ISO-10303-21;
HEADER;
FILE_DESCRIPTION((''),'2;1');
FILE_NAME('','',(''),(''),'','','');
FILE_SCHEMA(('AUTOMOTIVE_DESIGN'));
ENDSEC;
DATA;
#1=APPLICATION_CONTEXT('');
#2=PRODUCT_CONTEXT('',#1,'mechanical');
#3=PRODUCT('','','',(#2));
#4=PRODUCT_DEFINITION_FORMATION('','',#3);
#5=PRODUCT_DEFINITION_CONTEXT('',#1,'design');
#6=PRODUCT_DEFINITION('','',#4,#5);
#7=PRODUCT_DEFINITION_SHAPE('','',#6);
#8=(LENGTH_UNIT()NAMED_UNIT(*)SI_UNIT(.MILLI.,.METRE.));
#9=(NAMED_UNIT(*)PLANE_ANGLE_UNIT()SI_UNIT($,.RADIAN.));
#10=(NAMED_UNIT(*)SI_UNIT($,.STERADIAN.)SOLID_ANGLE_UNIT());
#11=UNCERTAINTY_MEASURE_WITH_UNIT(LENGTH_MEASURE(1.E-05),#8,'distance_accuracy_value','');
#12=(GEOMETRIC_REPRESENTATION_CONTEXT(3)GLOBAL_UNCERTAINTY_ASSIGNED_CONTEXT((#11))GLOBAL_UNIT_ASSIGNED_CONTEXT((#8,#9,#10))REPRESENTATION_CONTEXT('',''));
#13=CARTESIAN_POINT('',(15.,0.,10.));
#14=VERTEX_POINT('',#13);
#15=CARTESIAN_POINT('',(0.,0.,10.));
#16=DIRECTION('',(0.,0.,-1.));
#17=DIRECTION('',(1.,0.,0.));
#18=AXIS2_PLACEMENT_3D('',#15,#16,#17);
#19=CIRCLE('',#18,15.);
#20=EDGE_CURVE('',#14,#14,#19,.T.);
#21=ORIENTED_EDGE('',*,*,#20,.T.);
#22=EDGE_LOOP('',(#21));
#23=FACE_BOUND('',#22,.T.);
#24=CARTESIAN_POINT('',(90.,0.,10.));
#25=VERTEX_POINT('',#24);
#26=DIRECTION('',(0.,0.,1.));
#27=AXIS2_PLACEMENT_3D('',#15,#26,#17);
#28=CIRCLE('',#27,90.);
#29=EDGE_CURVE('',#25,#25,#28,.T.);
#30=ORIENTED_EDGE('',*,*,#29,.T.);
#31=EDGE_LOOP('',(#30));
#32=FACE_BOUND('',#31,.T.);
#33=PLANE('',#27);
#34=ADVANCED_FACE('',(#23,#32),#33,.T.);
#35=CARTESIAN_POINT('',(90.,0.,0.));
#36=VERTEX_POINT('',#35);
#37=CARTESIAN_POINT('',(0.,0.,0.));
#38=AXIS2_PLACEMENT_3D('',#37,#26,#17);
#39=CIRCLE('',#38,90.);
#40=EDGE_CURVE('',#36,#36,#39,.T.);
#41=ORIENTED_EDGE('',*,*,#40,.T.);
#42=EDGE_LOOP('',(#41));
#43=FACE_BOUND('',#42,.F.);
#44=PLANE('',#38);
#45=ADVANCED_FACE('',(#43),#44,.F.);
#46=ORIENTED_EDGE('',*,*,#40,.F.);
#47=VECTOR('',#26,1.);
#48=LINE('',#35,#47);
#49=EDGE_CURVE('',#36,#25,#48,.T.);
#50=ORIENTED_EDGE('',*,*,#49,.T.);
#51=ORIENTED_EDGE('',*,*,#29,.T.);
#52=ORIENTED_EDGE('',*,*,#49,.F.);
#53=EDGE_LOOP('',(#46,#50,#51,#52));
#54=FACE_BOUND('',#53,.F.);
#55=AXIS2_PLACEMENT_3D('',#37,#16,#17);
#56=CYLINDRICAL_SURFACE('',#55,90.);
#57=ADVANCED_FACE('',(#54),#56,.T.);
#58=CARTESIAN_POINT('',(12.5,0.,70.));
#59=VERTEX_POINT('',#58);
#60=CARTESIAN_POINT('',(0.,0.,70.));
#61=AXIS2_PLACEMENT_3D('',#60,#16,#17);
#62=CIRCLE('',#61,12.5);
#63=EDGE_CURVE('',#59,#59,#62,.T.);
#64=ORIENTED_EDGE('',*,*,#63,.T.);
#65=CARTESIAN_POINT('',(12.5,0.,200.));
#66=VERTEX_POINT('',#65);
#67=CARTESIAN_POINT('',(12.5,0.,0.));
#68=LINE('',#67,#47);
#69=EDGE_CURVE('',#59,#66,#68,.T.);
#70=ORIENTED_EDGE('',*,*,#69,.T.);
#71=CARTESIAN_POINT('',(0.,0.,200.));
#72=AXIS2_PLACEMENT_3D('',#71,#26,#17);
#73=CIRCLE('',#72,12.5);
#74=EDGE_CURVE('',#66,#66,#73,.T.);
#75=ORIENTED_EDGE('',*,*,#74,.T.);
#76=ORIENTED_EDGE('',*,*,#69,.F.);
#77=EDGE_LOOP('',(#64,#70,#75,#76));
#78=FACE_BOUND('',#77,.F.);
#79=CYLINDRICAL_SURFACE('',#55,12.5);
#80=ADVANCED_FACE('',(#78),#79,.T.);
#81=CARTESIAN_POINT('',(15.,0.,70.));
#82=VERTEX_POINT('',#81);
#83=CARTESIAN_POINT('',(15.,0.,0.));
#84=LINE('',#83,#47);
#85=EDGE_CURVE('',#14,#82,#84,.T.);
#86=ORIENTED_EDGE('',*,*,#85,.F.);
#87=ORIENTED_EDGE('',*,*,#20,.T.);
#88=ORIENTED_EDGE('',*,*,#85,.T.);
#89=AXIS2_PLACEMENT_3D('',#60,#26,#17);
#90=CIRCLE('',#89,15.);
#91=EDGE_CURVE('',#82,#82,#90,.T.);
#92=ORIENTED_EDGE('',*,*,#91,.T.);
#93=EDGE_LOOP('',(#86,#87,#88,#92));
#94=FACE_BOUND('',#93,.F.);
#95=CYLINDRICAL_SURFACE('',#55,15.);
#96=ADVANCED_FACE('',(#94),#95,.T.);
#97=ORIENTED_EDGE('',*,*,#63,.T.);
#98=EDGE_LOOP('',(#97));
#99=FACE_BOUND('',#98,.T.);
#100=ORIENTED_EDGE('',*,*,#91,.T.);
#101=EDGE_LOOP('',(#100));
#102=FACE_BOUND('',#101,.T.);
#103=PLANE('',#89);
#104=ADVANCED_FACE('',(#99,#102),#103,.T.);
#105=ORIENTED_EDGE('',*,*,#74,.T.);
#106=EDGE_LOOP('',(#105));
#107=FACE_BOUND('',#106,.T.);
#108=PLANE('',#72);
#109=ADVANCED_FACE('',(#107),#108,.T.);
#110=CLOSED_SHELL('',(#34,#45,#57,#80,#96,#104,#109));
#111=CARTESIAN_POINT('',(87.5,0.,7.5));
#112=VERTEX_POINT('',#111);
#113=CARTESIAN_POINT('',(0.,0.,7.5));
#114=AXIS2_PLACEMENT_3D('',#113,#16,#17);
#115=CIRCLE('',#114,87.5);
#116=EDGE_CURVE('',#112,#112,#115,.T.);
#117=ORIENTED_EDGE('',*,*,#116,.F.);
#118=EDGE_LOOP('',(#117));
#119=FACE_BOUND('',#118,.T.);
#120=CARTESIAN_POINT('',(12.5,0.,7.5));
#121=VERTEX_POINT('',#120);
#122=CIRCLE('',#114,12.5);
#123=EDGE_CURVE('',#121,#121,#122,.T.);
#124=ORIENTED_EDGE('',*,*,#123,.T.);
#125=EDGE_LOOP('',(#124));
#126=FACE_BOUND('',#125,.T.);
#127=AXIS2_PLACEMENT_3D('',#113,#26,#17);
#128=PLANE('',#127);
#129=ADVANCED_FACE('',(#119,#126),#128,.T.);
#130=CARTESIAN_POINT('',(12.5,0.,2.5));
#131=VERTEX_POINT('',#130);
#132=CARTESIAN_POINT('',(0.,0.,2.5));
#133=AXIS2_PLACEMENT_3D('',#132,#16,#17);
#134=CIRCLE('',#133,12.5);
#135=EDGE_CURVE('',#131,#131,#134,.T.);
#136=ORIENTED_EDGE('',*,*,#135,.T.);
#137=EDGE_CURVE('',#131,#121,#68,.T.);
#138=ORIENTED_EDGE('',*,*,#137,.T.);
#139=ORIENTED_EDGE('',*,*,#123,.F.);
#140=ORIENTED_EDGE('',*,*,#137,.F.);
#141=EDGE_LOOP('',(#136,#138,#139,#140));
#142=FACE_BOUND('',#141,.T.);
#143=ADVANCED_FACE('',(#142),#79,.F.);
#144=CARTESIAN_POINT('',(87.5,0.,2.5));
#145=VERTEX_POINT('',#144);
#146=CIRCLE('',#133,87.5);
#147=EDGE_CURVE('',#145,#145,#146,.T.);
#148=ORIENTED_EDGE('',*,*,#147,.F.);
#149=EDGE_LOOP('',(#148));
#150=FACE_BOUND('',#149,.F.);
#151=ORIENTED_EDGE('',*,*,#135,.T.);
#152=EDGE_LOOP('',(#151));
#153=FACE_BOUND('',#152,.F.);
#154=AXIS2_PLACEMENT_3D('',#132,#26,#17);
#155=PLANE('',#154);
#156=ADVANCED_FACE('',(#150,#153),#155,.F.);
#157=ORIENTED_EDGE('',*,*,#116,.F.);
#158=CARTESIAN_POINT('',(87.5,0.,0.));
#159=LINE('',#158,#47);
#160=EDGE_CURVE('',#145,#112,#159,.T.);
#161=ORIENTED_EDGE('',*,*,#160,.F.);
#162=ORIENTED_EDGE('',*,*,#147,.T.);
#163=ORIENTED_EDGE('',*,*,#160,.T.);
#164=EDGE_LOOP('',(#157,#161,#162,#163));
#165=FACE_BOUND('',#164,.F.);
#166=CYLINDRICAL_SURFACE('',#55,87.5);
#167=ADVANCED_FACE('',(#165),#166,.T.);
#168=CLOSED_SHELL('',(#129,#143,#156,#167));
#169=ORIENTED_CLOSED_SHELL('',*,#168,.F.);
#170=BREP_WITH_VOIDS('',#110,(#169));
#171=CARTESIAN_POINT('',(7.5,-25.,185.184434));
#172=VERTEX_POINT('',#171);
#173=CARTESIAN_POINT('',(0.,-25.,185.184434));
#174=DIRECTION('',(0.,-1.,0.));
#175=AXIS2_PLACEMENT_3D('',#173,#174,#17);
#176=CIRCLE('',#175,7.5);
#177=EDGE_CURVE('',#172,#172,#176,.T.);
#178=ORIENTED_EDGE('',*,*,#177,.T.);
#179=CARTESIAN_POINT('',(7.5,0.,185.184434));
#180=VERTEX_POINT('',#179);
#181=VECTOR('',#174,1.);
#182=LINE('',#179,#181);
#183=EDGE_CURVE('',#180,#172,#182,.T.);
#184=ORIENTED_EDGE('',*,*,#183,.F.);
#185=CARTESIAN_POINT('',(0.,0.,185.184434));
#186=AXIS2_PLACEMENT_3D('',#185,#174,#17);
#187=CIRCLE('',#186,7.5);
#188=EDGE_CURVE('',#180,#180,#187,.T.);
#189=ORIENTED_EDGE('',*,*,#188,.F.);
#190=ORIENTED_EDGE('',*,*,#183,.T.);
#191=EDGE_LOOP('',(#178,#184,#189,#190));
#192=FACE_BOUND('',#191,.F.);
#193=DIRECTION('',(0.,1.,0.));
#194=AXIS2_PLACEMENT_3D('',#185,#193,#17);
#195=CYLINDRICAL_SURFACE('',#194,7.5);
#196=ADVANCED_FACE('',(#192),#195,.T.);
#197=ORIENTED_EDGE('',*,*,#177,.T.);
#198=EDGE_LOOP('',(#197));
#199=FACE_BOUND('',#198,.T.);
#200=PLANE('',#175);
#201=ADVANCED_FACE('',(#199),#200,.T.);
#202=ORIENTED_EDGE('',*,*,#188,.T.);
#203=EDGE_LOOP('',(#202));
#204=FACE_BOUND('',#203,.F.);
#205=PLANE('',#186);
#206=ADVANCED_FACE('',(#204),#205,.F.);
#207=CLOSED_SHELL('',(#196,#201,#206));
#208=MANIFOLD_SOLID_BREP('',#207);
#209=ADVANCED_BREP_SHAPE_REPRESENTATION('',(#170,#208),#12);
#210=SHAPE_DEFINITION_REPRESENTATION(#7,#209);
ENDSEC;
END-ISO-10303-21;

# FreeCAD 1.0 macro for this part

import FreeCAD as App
import Part
import Sketcher
from FreeCAD import Vector


def faces_at(feature, points):
    """Names of the faces that lie closest to the given points."""
    faces = feature.Shape.Faces
    near = lambda p: min(range(len(faces)), key=lambda i: faces[i].distToShape(Part.Vertex(*p))[0])
    return sorted({f"Face{near(p) + 1}" for p in points})

doc = App.newDocument("Part")
body = doc.addObject("PartDesign::Body", "Body")

sketch1 = body.newObject("Sketcher::SketchObject", "Sketch")
sketch1.AttachmentSupport = (doc.getObject("XY_Plane"), [""])
sketch1.MapMode = "FlatFace"
sketch1.addGeometry(Part.Circle(Vector(0, 0, 0), Vector(0, 0, 1), 90), False)
sketch1.addConstraint(Sketcher.Constraint("Coincident", 0, 3, -1, 1))
sketch1.addConstraint(Sketcher.Constraint("Diameter", 0, 180.0))
pad1 = body.newObject("PartDesign::Pad", "Pad")
pad1.Profile = sketch1
pad1.Length = 10

sketch2 = body.newObject("Sketcher::SketchObject", "Sketch001")
sketch2.AttachmentSupport = (doc.getObject("XY_Plane"), [""])
sketch2.MapMode = "FlatFace"
sketch2.addGeometry(Part.Circle(Vector(0, 0, 0), Vector(0, 0, 1), 15), False)
sketch2.addConstraint(Sketcher.Constraint("Coincident", 0, 3, -1, 1))
sketch2.addConstraint(Sketcher.Constraint("Diameter", 0, 30.0))
pad2 = body.newObject("PartDesign::Pad", "Pad001")
pad2.Profile = sketch2
pad2.Length = 70
doc.recompute()

thickness = body.newObject("PartDesign::Thickness", "Thickness")
thickness.Base = (pad2, faces_at(pad2, [(0, 0, 70)]))
thickness.Value = 2.5
thickness.Reversed = True
thickness.Join = "Intersection"

sketch3 = body.newObject("Sketcher::SketchObject", "Sketch002")
sketch3.AttachmentSupport = (doc.getObject("XY_Plane"), [""])
sketch3.MapMode = "FlatFace"
sketch3.addGeometry(Part.Circle(Vector(0, 0, 0), Vector(0, 0, 1), 12.5), False)
sketch3.addConstraint(Sketcher.Constraint("Coincident", 0, 3, -1, 1))
sketch3.addConstraint(Sketcher.Constraint("Diameter", 0, 25.0))
pad3 = body.newObject("PartDesign::Pad", "Pad002")
pad3.Profile = sketch3
pad3.Length = 200
body2 = doc.addObject("PartDesign::Body", "Body001")

sketch4 = body2.newObject("Sketcher::SketchObject", "Sketch003")
sketch4.AttachmentSupport = (doc.getObject("XZ_Plane001"), [""])
sketch4.MapMode = "FlatFace"
sketch4.addGeometry(Part.Circle(Vector(0, 185.184434, 0), Vector(0, 0, 1), 7.5), False)
sketch4.addConstraint(Sketcher.Constraint("PointOnObject", 0, 3, -2))
sketch4.addConstraint(Sketcher.Constraint("Diameter", 0, 15.0))
sketch4.addConstraint(Sketcher.Constraint("DistanceY", -1, 1, 0, 3, 185.184434))
pad4 = body2.newObject("PartDesign::Pad", "Pad003")
pad4.Profile = sketch4
pad4.Length = 25

doc.recompute()
